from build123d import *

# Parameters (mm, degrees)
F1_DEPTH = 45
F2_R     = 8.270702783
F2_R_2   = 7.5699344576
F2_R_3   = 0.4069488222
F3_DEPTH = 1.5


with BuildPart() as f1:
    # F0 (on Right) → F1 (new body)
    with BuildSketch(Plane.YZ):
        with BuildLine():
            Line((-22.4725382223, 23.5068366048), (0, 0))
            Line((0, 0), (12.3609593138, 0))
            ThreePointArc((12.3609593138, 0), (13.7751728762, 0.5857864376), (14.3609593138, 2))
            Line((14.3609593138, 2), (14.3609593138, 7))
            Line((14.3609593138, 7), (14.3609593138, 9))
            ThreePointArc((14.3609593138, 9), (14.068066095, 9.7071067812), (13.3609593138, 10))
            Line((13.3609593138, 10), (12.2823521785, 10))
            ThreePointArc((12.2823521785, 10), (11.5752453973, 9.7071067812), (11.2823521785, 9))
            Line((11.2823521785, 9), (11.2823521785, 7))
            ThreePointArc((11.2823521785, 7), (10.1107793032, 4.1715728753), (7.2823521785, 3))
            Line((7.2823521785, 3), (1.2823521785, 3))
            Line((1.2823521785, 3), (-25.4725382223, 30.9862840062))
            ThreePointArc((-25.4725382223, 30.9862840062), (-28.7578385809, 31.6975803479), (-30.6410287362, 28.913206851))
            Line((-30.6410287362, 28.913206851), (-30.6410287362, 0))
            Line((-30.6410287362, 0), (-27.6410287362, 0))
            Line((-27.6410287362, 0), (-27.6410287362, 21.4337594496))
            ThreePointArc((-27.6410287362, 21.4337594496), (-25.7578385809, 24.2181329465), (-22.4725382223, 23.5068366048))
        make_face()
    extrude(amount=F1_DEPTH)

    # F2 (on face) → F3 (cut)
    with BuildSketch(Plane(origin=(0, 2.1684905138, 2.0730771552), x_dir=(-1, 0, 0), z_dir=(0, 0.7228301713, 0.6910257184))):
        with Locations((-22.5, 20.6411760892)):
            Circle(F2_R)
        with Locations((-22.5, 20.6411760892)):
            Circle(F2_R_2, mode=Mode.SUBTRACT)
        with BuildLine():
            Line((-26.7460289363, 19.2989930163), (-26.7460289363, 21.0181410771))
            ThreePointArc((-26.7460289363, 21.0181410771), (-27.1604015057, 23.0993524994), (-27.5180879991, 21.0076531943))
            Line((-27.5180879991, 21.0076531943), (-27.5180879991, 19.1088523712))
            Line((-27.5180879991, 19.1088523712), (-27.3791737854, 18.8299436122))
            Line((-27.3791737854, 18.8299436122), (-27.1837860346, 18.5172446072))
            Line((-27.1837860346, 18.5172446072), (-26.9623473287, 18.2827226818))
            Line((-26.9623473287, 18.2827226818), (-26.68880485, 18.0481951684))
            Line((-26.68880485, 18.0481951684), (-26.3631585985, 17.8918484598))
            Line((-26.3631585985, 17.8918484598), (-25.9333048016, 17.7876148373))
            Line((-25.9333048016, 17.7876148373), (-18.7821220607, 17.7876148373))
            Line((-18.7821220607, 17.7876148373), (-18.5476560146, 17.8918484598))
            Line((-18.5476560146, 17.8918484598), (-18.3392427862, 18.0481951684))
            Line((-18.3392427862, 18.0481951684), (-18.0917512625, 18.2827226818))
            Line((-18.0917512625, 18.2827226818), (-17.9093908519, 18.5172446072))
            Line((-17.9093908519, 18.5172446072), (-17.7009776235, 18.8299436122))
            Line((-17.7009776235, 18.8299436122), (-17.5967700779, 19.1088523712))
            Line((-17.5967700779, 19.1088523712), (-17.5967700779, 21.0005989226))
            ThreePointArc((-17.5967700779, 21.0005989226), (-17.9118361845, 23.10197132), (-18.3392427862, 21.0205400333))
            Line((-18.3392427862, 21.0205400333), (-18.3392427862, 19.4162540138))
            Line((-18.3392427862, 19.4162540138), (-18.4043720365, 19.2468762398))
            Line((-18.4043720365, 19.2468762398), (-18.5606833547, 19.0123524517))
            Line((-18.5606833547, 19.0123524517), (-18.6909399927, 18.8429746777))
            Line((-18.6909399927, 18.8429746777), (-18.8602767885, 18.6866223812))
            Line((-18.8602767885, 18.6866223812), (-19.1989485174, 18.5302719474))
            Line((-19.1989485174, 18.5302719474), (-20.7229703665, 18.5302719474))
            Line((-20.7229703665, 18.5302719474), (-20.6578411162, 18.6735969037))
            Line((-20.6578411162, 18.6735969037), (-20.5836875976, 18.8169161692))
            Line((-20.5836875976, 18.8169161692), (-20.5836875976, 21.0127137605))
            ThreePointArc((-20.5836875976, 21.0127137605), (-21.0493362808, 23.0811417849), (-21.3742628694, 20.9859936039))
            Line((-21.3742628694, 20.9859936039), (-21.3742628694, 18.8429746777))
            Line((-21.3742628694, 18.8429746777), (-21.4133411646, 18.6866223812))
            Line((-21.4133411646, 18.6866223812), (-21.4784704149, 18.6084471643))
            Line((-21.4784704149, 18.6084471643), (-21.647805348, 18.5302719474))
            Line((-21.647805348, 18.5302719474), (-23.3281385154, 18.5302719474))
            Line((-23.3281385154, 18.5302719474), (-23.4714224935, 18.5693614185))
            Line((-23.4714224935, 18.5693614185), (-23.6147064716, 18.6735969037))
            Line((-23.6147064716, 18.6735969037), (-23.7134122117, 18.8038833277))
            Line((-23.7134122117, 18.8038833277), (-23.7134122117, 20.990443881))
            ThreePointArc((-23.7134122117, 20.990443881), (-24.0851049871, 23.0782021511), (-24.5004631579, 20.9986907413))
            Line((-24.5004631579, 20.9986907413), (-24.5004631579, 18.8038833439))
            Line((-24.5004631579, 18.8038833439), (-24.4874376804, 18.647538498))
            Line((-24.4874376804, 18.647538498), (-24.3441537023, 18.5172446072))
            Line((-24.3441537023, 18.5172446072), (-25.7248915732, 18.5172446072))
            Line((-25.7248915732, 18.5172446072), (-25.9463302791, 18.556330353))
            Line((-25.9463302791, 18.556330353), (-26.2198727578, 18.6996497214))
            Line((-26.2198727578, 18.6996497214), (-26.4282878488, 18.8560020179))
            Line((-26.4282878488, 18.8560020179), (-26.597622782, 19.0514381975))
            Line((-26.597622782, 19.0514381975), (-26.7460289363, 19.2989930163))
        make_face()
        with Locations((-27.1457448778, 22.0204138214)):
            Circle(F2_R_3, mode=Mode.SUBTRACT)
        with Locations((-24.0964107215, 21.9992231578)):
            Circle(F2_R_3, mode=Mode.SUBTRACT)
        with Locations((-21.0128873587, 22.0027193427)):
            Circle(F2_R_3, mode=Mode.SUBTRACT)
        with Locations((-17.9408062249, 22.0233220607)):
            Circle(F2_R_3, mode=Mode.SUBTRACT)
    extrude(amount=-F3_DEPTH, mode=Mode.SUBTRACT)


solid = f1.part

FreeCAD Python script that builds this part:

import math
import FreeCAD as App
import Part
import Sketcher

V = App.Vector
Q = App.Units.Quantity

doc = App.newDocument("Part")
body = doc.addObject("PartDesign::Body", "Body")

sketch1 = body.newObject("Sketcher::SketchObject", "Sketch")
sketch1.AttachmentSupport = (doc.getObject("YZ_Plane"), [""])
sketch1.MapMode = "FlatFace"
sketch1.addGeometry([
    Part.LineSegment(V(-22.5, 23.5, 0), V(0, 0, 0)),
    Part.LineSegment(V(0, 0, 0), V(12.4, 0, 0)),
    Part.ArcOfCircle(Part.Circle(V(12.4, 2, 0), V(0, 0, 1), 2), math.radians(-90), math.radians(0)),
    Part.LineSegment(V(14.4, 2, 0), V(14.4, 9, 0)),
    Part.ArcOfCircle(Part.Circle(V(13.4, 9, 0), V(0, 0, 1), 1), math.radians(0), math.radians(90)),
    Part.LineSegment(V(13.4, 10, 0), V(12.3, 10, 0)),
    Part.ArcOfCircle(Part.Circle(V(12.3, 9, 0), V(0, 0, 1), 1), math.radians(90), math.radians(180)),
    Part.LineSegment(V(11.3, 9, 0), V(11.3, 7, 0)),
    Part.ArcOfCircle(Part.Circle(V(7.3, 7, 0), V(0, 0, 1), 4), math.radians(-90), math.radians(0)),
    Part.LineSegment(V(7.3, 3, 0), V(1.3, 3, 0)),
    Part.LineSegment(V(1.3, 3, 0), V(-25.5, 31, 0)),
    Part.ArcOfCircle(Part.Circle(V(-27.6, 28.9, 0), V(0, 0, 1), 3), math.radians(44), math.radians(180)),
    Part.LineSegment(V(-30.6, 28.9, 0), V(-30.6, 0, 0)),
    Part.LineSegment(V(-30.6, 0, 0), V(-27.6, 0, 0)),
    Part.LineSegment(V(-27.6, 0, 0), V(-27.6, 21.4, 0)),
    Part.ArcOfCircle(Part.Circle(V(-24.6, 21.4, 0), V(0, 0, 1), 3), math.radians(44), math.radians(180)),
], False)
sketch1.addConstraint([
    Sketcher.Constraint("Coincident", 0, 2, 1, 1),
    Sketcher.Constraint("Tangent", 1, 2, 2, 1),
    Sketcher.Constraint("Tangent", 2, 2, 3, 1),
    Sketcher.Constraint("Tangent", 3, 2, 4, 1),
    Sketcher.Constraint("Tangent", 4, 2, 5, 1),
    Sketcher.Constraint("Tangent", 5, 2, 6, 1),
    Sketcher.Constraint("Tangent", 6, 2, 7, 1),
    Sketcher.Constraint("Tangent", 7, 2, 8, 2),
    Sketcher.Constraint("Tangent", 8, 1, 9, 1),
    Sketcher.Constraint("Coincident", 9, 2, 10, 1),
    Sketcher.Constraint("Tangent", 10, 2, 11, 1),
    Sketcher.Constraint("Tangent", 11, 2, 12, 1),
    Sketcher.Constraint("Coincident", 12, 2, 13, 1),
    Sketcher.Constraint("Coincident", 13, 2, 14, 1),
    Sketcher.Constraint("Tangent", 14, 2, 15, 2),
    Sketcher.Constraint("Tangent", 15, 1, 0, 1),
    Sketcher.Constraint("Horizontal", 1),
    Sketcher.Constraint("Vertical", 3),
    Sketcher.Constraint("Horizontal", 5),
    Sketcher.Constraint("Vertical", 7),
    Sketcher.Constraint("Horizontal", 9),
    Sketcher.Constraint("Vertical", 12),
    Sketcher.Constraint("Horizontal", 13),
    Sketcher.Constraint("Vertical", 14),
    Sketcher.Constraint("Coincident", 0, 2, -1, 1),
    Sketcher.Constraint("Equal", 4, 6),
    Sketcher.Constraint("Equal", 11, 15),
    Sketcher.Constraint("PointOnObject", 12, 2, -1),
    Sketcher.Constraint("Parallel", 0, 10),
    Sketcher.Constraint("Vertical", 11, 3, 13, 2),
    Sketcher.Constraint("Radius", 2, Q("2 mm")),
    Sketcher.Constraint("Radius", 4, Q("1 mm")),
    Sketcher.Constraint("Radius", 8, Q("4 mm")),
    Sketcher.Constraint("Radius", 11, Q("3 mm")),
    Sketcher.Constraint("DistanceX", 9, 2, 9, 1, Q("6 mm")),
    Sketcher.Constraint("DistanceY", 3, 1, 3, 2, Q("7 mm")),
    Sketcher.Constraint("DistanceY", 7, 2, 7, 1, Q("2 mm")),
    Sketcher.Constraint("DistanceX", 1, 1, 1, 2, Q("12.360959 mm")),
    Sketcher.Constraint("DistanceY", 14, 1, 14, 2, Q("21.433759 mm")),
    Sketcher.Constraint("DistanceX", 5, 2, 5, 1, Q("1.078607 mm")),
    Sketcher.Constraint("DistanceY", 12, 2, 12, 1, Q("28.913207 mm")),
])
pad1 = body.newObject("PartDesign::Pad", "Pad")
pad1.Profile = sketch1
pad1.Length = 45

sketch2 = body.newObject("Sketcher::SketchObject", "Sketch001")
sketch2.Placement = App.Placement(V(0, 2.168491, 2.073077), App.Rotation(V(-1, 0, 0), V(0, -0.691025718, 0.722830171), V(0, 0.722830171, 0.691025718), "ZXY"))
sketch2.addGeometry([
    Part.Circle(V(-22.5, 20.64, 0), V(0, 0, 1), 8.27),
    Part.Circle(V(-22.5, 20.64, 0), V(0, 0, 1), 7.57),
    Part.LineSegment(V(-26.75, 19.3, 0), V(-26.75, 21.02, 0)),
    Part.ArcOfCircle(Part.Circle(V(-27.15, 22.02, 0), V(0, 0, 1), 1.08), math.radians(-68), math.radians(250)),
    Part.LineSegment(V(-27.52, 21.01, 0), V(-27.52, 19.11, 0)),
    Part.LineSegment(V(-27.52, 19.11, 0), V(-27.38, 18.83, 0)),
    Part.LineSegment(V(-27.38, 18.83, 0), V(-27.18, 18.52, 0)),
    Part.LineSegment(V(-27.18, 18.52, 0), V(-26.96, 18.28, 0)),
    Part.LineSegment(V(-26.96, 18.28, 0), V(-26.69, 18.05, 0)),
    Part.LineSegment(V(-26.69, 18.05, 0), V(-26.36, 17.89, 0)),
    Part.LineSegment(V(-26.36, 17.89, 0), V(-25.93, 17.79, 0)),
    Part.LineSegment(V(-25.93, 17.79, 0), V(-18.78, 17.79, 0)),
    Part.LineSegment(V(-18.78, 17.79, 0), V(-18.55, 17.89, 0)),
    Part.LineSegment(V(-18.55, 17.89, 0), V(-18.34, 18.05, 0)),
    Part.LineSegment(V(-18.34, 18.05, 0), V(-18.09, 18.28, 0)),
    Part.LineSegment(V(-18.09, 18.28, 0), V(-17.91, 18.52, 0)),
    Part.LineSegment(V(-17.91, 18.52, 0), V(-17.7, 18.83, 0)),
    Part.LineSegment(V(-17.7, 18.83, 0), V(-17.6, 19.11, 0)),
    Part.LineSegment(V(-17.6, 19.11, 0), V(-17.6, 21, 0)),
    Part.ArcOfCircle(Part.Circle(V(-17.94, 22.02, 0), V(0, 0, 1), 1.08), math.radians(-71), math.radians(248)),
    Part.LineSegment(V(-18.34, 21.02, 0), V(-18.34, 19.42, 0)),
    Part.LineSegment(V(-18.34, 19.42, 0), V(-18.4, 19.25, 0)),
    Part.LineSegment(V(-18.4, 19.25, 0), V(-18.56, 19.01, 0)),
    Part.LineSegment(V(-18.56, 19.01, 0), V(-18.69, 18.84, 0)),
    Part.LineSegment(V(-18.69, 18.84, 0), V(-18.86, 18.69, 0)),
    Part.LineSegment(V(-18.86, 18.69, 0), V(-19.2, 18.53, 0)),
    Part.LineSegment(V(-19.2, 18.53, 0), V(-20.72, 18.53, 0)),
    Part.LineSegment(V(-20.72, 18.53, 0), V(-20.66, 18.67, 0)),
    Part.LineSegment(V(-20.66, 18.67, 0), V(-20.58, 18.82, 0)),
    Part.LineSegment(V(-20.58, 18.82, 0), V(-20.58, 21.01, 0)),
    Part.ArcOfCircle(Part.Circle(V(-21.01, 22, 0), V(0, 0, 1), 1.08), math.radians(-67), math.radians(250)),
    Part.LineSegment(V(-21.37, 20.99, 0), V(-21.37, 18.84, 0)),
    Part.LineSegment(V(-21.37, 18.84, 0), V(-21.41, 18.69, 0)),
    Part.LineSegment(V(-21.41, 18.69, 0), V(-21.48, 18.61, 0)),
    Part.LineSegment(V(-21.48, 18.61, 0), V(-21.65, 18.53, 0)),
    Part.LineSegment(V(-21.65, 18.53, 0), V(-23.33, 18.53, 0)),
    Part.LineSegment(V(-23.33, 18.53, 0), V(-23.47, 18.57, 0)),
    Part.LineSegment(V(-23.47, 18.57, 0), V(-23.61, 18.67, 0)),
    Part.LineSegment(V(-23.61, 18.67, 0), V(-23.71, 18.8, 0)),
    Part.LineSegment(V(-23.71, 18.8, 0), V(-23.71, 20.99, 0)),
    Part.ArcOfCircle(Part.Circle(V(-24.1, 22, 0), V(0, 0, 1), 1.08), math.radians(-69), math.radians(248)),
    Part.LineSegment(V(-24.5, 21, 0), V(-24.5, 18.8, 0)),
    Part.LineSegment(V(-24.5, 18.8, 0), V(-24.49, 18.65, 0)),
    Part.LineSegment(V(-24.49, 18.65, 0), V(-24.34, 18.52, 0)),
    Part.LineSegment(V(-24.34, 18.52, 0), V(-25.72, 18.52, 0)),
    Part.LineSegment(V(-25.72, 18.52, 0), V(-25.95, 18.56, 0)),
    Part.LineSegment(V(-25.95, 18.56, 0), V(-26.22, 18.7, 0)),
    Part.LineSegment(V(-26.22, 18.7, 0), V(-26.43, 18.86, 0)),
    Part.LineSegment(V(-26.43, 18.86, 0), V(-26.6, 19.05, 0)),
    Part.LineSegment(V(-26.6, 19.05, 0), V(-26.75, 19.3, 0)),
    Part.Circle(V(-24.1, 22, 0), V(0, 0, 1), 0.41),
    Part.Circle(V(-21.01, 22, 0), V(0, 0, 1), 0.41),
    Part.Circle(V(-27.15, 22.02, 0), V(0, 0, 1), 0.41),
    Part.Circle(V(-17.94, 22.02, 0), V(0, 0, 1), 0.41),
], False)
sketch2.addConstraint([
    Sketcher.Constraint("Coincident", 2, 2, 3, 1),
    Sketcher.Constraint("Coincident", 3, 2, 4, 1),
    Sketcher.Constraint("Coincident", 4, 2, 5, 1),
    Sketcher.Constraint("Coincident", 5, 2, 6, 1),
    Sketcher.Constraint("Coincident", 6, 2, 7, 1),
    Sketcher.Constraint("Coincident", 7, 2, 8, 1),
    Sketcher.Constraint("Coincident", 8, 2, 9, 1),
    Sketcher.Constraint("Coincident", 9, 2, 10, 1),
    Sketcher.Constraint("Coincident", 10, 2, 11, 1),
    Sketcher.Constraint("Coincident", 11, 2, 12, 1),
    Sketcher.Constraint("Coincident", 12, 2, 13, 1),
    Sketcher.Constraint("Coincident", 13, 2, 14, 1),
    Sketcher.Constraint("Coincident", 14, 2, 15, 1),
    Sketcher.Constraint("Coincident", 15, 2, 16, 1),
    Sketcher.Constraint("Coincident", 16, 2, 17, 1),
    Sketcher.Constraint("Coincident", 17, 2, 18, 1),
    Sketcher.Constraint("Coincident", 18, 2, 19, 1),
    Sketcher.Constraint("Coincident", 19, 2, 20, 1),
    Sketcher.Constraint("Coincident", 20, 2, 21, 1),
    Sketcher.Constraint("Coincident", 21, 2, 22, 1),
    Sketcher.Constraint("Coincident", 22, 2, 23, 1),
    Sketcher.Constraint("Coincident", 23, 2, 24, 1),
    Sketcher.Constraint("Coincident", 24, 2, 25, 1),
    Sketcher.Constraint("Coincident", 25, 2, 26, 1),
    Sketcher.Constraint("Coincident", 26, 2, 27, 1),
    Sketcher.Constraint("Coincident", 27, 2, 28, 1),
    Sketcher.Constraint("Coincident", 28, 2, 29, 1),
    Sketcher.Constraint("Coincident", 29, 2, 30, 1),
    Sketcher.Constraint("Coincident", 30, 2, 31, 1),
    Sketcher.Constraint("Coincident", 31, 2, 32, 1),
    Sketcher.Constraint("Coincident", 32, 2, 33, 1),
    Sketcher.Constraint("Coincident", 33, 2, 34, 1),
    Sketcher.Constraint("Coincident", 34, 2, 35, 1),
    Sketcher.Constraint("Coincident", 35, 2, 36, 1),
    Sketcher.Constraint("Coincident", 36, 2, 37, 1),
    Sketcher.Constraint("Coincident", 37, 2, 38, 1),
    Sketcher.Constraint("Coincident", 38, 2, 39, 1),
    Sketcher.Constraint("Coincident", 39, 2, 40, 1),
    Sketcher.Constraint("Coincident", 40, 2, 41, 1),
    Sketcher.Constraint("Coincident", 41, 2, 42, 1),
    Sketcher.Constraint("Coincident", 42, 2, 43, 1),
    Sketcher.Constraint("Coincident", 43, 2, 44, 1),
    Sketcher.Constraint("Coincident", 44, 2, 45, 1),
    Sketcher.Constraint("Coincident", 45, 2, 46, 1),
    Sketcher.Constraint("Coincident", 46, 2, 47, 1),
    Sketcher.Constraint("Coincident", 47, 2, 48, 1),
    Sketcher.Constraint("Coincident", 48, 2, 49, 1),
    Sketcher.Constraint("Coincident", 49, 2, 2, 1),
    Sketcher.Constraint("Vertical", 2),
    Sketcher.Constraint("Vertical", 4),
    Sketcher.Constraint("Horizontal", 11),
    Sketcher.Constraint("Vertical", 18),
    Sketcher.Constraint("Vertical", 20),
    Sketcher.Constraint("Horizontal", 26),
    Sketcher.Constraint("Vertical", 29),
    Sketcher.Constraint("Vertical", 31),
    Sketcher.Constraint("Horizontal", 35),
    Sketcher.Constraint("Vertical", 39),
    Sketcher.Constraint("Vertical", 41),
    Sketcher.Constraint("Horizontal", 44),
    Sketcher.Constraint("Coincident", 1, 3, 0, 3),
    Sketcher.Constraint("Coincident", 50, 3, 40, 3),
    Sketcher.Constraint("Coincident", 51, 3, 30, 3),
    Sketcher.Constraint("Coincident", 52, 3, 3, 3),
    Sketcher.Constraint("Coincident", 53, 3, 19, 3),
    Sketcher.Constraint("Equal", 3, 19),
    Sketcher.Constraint("Equal", 19, 30),
    Sketcher.Constraint("Equal", 30, 40),
    Sketcher.Constraint("Equal", 50, 51),
    Sketcher.Constraint("Equal", 51, 52),
    Sketcher.Constraint("Equal", 52, 53),
    Sketcher.Constraint("Horizontal", 9, 2, 12, 2),
    Sketcher.Constraint("Horizontal", 8, 2, 13, 2),
    Sketcher.Constraint("Horizontal", 7, 2, 14, 2),
    Sketcher.Constraint("Horizontal", 6, 2, 15, 2),
    Sketcher.Constraint("Horizontal", 5, 2, 16, 2),
    Sketcher.Constraint("Horizontal", 4, 2, 17, 2),
    Sketcher.Constraint("Horizontal", 23, 2, 31, 2),
    Sketcher.Constraint("Horizontal", 24, 2, 32, 2),
    Sketcher.Constraint("Horizontal", 26, 2, 34, 2),
    Sketcher.Constraint("Horizontal", 27, 2, 37, 2),
    Sketcher.Constraint("Horizontal", 38, 2, 41, 2),
    Sketcher.Constraint("Horizontal", 15, 2, 43, 2),
    Sketcher.Constraint("Vertical", 13, 2, 19, 2),
    Sketcher.Constraint("DistanceX", 0, 3, -1, 1, Q("22.5 mm")),
    Sketcher.Constraint("Diameter", 1, Q("15.139869 mm")),
    Sketcher.Constraint("Radius", 3, Q("1.079038 mm")),
    Sketcher.Constraint("Diameter", 0, Q("16.541406 mm")),
    Sketcher.Constraint("Diameter", 50, Q("0.813898 mm")),
    Sketcher.Constraint("DistanceY", 4, 2, 4, 1, Q("1.898801 mm")),
    Sketcher.Constraint("DistanceY", -1, 1, 47, 2, Q("18.856002 mm")),
    Sketcher.Constraint("DistanceX", 50, 3, 39, 2, Q("0.382999 mm")),
    Sketcher.Constraint("DistanceX", 26, 2, 26, 1, Q("1.524022 mm")),
    Sketcher.Constraint("DistanceY", 2, 1, 2, 2, Q("1.719148 mm")),
    Sketcher.Constraint("DistanceY", 31, 2, 31, 1, Q("2.143019 mm")),
    Sketcher.Constraint("DistanceY", 39, 1, 39, 2, Q("2.186561 mm")),
    Sketcher.Constraint("DistanceY", -1, 1, 18, 2, Q("21.000599 mm")),
    Sketcher.Constraint("DistanceY", 40, 3, 19, 3, Q("0.024099 mm")),
    Sketcher.Constraint("DistanceY", 6, 2, 5, 2, Q("0.312699 mm")),
    Sketcher.Constraint("DistanceX", 4, 2, 6, 2, Q("0.334302 mm")),
    Sketcher.Constraint("DistanceX", 8, 2, 10, 2, Q("0.7555 mm")),
    Sketcher.Constraint("DistanceY", 14, 2, 19, 3, Q("3.740599 mm")),
    Sketcher.Constraint("DistanceY", 17, 2, 20, 2, Q("0.307402 mm")),
    Sketcher.Constraint("DistanceX", 21, 2, 17, 2, Q("0.807602 mm")),
    Sketcher.Constraint("DistanceY", 22, 2, 20, 2, Q("0.403902 mm")),
    Sketcher.Constraint("DistanceY", 23, 2, 21, 2, Q("0.403902 mm")),
    Sketcher.Constraint("DistanceX", 27, 2, 23, 2, Q("1.966901 mm")),
    Sketcher.Constraint("DistanceX", 30, 3, 29, 2, Q("0.4292 mm")),
    Sketcher.Constraint("DistanceY", 31, 2, 0, 3, Q("1.798201 mm")),
    Sketcher.Constraint("DistanceX", 32, 2, 27, 2, Q("0.7555 mm")),
    Sketcher.Constraint("DistanceX", 33, 2, 26, 2, Q("0.7555 mm")),
    Sketcher.Constraint("DistanceX", 37, 2, 34, 2, Q("1.966901 mm")),
    Sketcher.Constraint("DistanceX", 42, 2, 35, 2, Q("1.159299 mm")),
    Sketcher.Constraint("DistanceY", 9, 2, 46, 2, Q("0.807801 mm")),
    Sketcher.Constraint("DistanceX", 6, 2, 47, 2, Q("0.755498 mm")),
    Sketcher.Constraint("Distance", 5, Q("0.311588 mm")),
    Sketcher.Constraint("Distance", 10, Q("0.442311 mm")),
    Sketcher.Constraint("Distance", 12, Q("0.256591 mm")),
    Sketcher.Constraint("Distance", 13, Q("0.260539 mm")),
    Sketcher.Constraint("Distance", 15, Q("0.297079 mm")),
    Sketcher.Constraint("Distance", 16, Q("0.375788 mm")),
    Sketcher.Constraint("Distance", 17, Q("0.29774 mm")),
    Sketcher.Constraint("Distance", 21, Q("0.181468 mm")),
    Sketcher.Constraint("Distance", 22, Q("0.281842 mm")),
    Sketcher.Constraint("Distance", 23, Q("0.213672 mm")),
    Sketcher.Constraint("Distance", 24, Q("0.23048 mm")),
    Sketcher.Constraint("Distance", 25, Q("0.37302 mm")),
    Sketcher.Constraint("Distance", 27, Q("0.157429 mm")),
    Sketcher.Constraint("Distance", 32, Q("0.161162 mm")),
    Sketcher.Constraint("Distance", 33, Q("0.101751 mm")),
    Sketcher.Constraint("Distance", 34, Q("0.186509 mm")),
    Sketcher.Constraint("Distance", 36, Q("0.14852 mm")),
    Sketcher.Constraint("Distance", 45, Q("0.224862 mm")),
    Sketcher.Constraint("Distance", 48, Q("0.258592 mm")),
    Sketcher.Constraint("Distance", 49, Q("0.288631 mm")),
    Sketcher.Constraint("DistanceX", 11, 1, 11, 2, Q("7.151183 mm")),
    Sketcher.Constraint("DistanceX", 35, 2, 35, 1, Q("1.680333 mm")),
    Sketcher.Constraint("DistanceX", 44, 2, 44, 1, Q("1.380738 mm")),
    Sketcher.Constraint("DistanceY", 18, 1, 18, 2, Q("1.891747 mm")),
    Sketcher.Constraint("DistanceY", 20, 2, 20, 1, Q("1.604286 mm")),
    Sketcher.Constraint("DistanceY", 29, 1, 29, 2, Q("2.195798 mm")),
    Sketcher.Constraint("DistanceY", 41, 2, 41, 1, Q("2.194807 mm")),
    Sketcher.Constraint("DistanceY", -1, 1, 30, 3, Q("22.002719 mm")),
    Sketcher.Constraint("DistanceX", 40, 3, -1, 1, Q("24.096411 mm")),
    Sketcher.Constraint("DistanceX", 2, 2, -1, 1, Q("26.746029 mm")),
    Sketcher.Constraint("DistanceY", -1, 1, 2, 2, Q("21.018141 mm")),
    Sketcher.Constraint("DistanceX", 9, 2, -1, 1, Q("26.363159 mm")),
    Sketcher.Constraint("DistanceY", -1, 1, 9, 2, Q("17.891848 mm")),
    Sketcher.Constraint("DistanceX", 14, 2, -1, 1, Q("18.091751 mm")),
    Sketcher.Constraint("DistanceX", 15, 2, -1, 1, Q("17.909391 mm")),
    Sketcher.Constraint("DistanceX", 17, 2, -1, 1, Q("17.59677 mm")),
    Sketcher.Constraint("DistanceX", 25, 2, -1, 1, Q("19.198949 mm")),
    Sketcher.Constraint("DistanceY", -1, 1, 25, 2, Q("18.530272 mm")),
    Sketcher.Constraint("DistanceY", -1, 1, 36, 2, Q("18.569361 mm")),
    Sketcher.Constraint("DistanceY", -1, 1, 42, 2, Q("18.647538 mm")),
    Sketcher.Constraint("DistanceX", 44, 2, -1, 1, Q("25.724892 mm")),
    Sketcher.Constraint("DistanceX", 45, 2, -1, 1, Q("25.94633 mm")),
    Sketcher.Constraint("DistanceY", -1, 1, 48, 2, Q("19.051438 mm")),
    Sketcher.Constraint("DistanceX", 6, 2, 7, 2, Q("0.221439 mm")),
    Sketcher.Constraint("DistanceX", 6, 2, 8, 2, Q("0.494981 mm")),
    Sketcher.Constraint("DistanceX", 46, 2, 44, 2, Q("0.494981 mm")),
])
pocket1 = body.newObject("PartDesign::Pocket", "Pocket")
pocket1.Profile = sketch2
pocket1.Length = 1.5

doc.recompute()
